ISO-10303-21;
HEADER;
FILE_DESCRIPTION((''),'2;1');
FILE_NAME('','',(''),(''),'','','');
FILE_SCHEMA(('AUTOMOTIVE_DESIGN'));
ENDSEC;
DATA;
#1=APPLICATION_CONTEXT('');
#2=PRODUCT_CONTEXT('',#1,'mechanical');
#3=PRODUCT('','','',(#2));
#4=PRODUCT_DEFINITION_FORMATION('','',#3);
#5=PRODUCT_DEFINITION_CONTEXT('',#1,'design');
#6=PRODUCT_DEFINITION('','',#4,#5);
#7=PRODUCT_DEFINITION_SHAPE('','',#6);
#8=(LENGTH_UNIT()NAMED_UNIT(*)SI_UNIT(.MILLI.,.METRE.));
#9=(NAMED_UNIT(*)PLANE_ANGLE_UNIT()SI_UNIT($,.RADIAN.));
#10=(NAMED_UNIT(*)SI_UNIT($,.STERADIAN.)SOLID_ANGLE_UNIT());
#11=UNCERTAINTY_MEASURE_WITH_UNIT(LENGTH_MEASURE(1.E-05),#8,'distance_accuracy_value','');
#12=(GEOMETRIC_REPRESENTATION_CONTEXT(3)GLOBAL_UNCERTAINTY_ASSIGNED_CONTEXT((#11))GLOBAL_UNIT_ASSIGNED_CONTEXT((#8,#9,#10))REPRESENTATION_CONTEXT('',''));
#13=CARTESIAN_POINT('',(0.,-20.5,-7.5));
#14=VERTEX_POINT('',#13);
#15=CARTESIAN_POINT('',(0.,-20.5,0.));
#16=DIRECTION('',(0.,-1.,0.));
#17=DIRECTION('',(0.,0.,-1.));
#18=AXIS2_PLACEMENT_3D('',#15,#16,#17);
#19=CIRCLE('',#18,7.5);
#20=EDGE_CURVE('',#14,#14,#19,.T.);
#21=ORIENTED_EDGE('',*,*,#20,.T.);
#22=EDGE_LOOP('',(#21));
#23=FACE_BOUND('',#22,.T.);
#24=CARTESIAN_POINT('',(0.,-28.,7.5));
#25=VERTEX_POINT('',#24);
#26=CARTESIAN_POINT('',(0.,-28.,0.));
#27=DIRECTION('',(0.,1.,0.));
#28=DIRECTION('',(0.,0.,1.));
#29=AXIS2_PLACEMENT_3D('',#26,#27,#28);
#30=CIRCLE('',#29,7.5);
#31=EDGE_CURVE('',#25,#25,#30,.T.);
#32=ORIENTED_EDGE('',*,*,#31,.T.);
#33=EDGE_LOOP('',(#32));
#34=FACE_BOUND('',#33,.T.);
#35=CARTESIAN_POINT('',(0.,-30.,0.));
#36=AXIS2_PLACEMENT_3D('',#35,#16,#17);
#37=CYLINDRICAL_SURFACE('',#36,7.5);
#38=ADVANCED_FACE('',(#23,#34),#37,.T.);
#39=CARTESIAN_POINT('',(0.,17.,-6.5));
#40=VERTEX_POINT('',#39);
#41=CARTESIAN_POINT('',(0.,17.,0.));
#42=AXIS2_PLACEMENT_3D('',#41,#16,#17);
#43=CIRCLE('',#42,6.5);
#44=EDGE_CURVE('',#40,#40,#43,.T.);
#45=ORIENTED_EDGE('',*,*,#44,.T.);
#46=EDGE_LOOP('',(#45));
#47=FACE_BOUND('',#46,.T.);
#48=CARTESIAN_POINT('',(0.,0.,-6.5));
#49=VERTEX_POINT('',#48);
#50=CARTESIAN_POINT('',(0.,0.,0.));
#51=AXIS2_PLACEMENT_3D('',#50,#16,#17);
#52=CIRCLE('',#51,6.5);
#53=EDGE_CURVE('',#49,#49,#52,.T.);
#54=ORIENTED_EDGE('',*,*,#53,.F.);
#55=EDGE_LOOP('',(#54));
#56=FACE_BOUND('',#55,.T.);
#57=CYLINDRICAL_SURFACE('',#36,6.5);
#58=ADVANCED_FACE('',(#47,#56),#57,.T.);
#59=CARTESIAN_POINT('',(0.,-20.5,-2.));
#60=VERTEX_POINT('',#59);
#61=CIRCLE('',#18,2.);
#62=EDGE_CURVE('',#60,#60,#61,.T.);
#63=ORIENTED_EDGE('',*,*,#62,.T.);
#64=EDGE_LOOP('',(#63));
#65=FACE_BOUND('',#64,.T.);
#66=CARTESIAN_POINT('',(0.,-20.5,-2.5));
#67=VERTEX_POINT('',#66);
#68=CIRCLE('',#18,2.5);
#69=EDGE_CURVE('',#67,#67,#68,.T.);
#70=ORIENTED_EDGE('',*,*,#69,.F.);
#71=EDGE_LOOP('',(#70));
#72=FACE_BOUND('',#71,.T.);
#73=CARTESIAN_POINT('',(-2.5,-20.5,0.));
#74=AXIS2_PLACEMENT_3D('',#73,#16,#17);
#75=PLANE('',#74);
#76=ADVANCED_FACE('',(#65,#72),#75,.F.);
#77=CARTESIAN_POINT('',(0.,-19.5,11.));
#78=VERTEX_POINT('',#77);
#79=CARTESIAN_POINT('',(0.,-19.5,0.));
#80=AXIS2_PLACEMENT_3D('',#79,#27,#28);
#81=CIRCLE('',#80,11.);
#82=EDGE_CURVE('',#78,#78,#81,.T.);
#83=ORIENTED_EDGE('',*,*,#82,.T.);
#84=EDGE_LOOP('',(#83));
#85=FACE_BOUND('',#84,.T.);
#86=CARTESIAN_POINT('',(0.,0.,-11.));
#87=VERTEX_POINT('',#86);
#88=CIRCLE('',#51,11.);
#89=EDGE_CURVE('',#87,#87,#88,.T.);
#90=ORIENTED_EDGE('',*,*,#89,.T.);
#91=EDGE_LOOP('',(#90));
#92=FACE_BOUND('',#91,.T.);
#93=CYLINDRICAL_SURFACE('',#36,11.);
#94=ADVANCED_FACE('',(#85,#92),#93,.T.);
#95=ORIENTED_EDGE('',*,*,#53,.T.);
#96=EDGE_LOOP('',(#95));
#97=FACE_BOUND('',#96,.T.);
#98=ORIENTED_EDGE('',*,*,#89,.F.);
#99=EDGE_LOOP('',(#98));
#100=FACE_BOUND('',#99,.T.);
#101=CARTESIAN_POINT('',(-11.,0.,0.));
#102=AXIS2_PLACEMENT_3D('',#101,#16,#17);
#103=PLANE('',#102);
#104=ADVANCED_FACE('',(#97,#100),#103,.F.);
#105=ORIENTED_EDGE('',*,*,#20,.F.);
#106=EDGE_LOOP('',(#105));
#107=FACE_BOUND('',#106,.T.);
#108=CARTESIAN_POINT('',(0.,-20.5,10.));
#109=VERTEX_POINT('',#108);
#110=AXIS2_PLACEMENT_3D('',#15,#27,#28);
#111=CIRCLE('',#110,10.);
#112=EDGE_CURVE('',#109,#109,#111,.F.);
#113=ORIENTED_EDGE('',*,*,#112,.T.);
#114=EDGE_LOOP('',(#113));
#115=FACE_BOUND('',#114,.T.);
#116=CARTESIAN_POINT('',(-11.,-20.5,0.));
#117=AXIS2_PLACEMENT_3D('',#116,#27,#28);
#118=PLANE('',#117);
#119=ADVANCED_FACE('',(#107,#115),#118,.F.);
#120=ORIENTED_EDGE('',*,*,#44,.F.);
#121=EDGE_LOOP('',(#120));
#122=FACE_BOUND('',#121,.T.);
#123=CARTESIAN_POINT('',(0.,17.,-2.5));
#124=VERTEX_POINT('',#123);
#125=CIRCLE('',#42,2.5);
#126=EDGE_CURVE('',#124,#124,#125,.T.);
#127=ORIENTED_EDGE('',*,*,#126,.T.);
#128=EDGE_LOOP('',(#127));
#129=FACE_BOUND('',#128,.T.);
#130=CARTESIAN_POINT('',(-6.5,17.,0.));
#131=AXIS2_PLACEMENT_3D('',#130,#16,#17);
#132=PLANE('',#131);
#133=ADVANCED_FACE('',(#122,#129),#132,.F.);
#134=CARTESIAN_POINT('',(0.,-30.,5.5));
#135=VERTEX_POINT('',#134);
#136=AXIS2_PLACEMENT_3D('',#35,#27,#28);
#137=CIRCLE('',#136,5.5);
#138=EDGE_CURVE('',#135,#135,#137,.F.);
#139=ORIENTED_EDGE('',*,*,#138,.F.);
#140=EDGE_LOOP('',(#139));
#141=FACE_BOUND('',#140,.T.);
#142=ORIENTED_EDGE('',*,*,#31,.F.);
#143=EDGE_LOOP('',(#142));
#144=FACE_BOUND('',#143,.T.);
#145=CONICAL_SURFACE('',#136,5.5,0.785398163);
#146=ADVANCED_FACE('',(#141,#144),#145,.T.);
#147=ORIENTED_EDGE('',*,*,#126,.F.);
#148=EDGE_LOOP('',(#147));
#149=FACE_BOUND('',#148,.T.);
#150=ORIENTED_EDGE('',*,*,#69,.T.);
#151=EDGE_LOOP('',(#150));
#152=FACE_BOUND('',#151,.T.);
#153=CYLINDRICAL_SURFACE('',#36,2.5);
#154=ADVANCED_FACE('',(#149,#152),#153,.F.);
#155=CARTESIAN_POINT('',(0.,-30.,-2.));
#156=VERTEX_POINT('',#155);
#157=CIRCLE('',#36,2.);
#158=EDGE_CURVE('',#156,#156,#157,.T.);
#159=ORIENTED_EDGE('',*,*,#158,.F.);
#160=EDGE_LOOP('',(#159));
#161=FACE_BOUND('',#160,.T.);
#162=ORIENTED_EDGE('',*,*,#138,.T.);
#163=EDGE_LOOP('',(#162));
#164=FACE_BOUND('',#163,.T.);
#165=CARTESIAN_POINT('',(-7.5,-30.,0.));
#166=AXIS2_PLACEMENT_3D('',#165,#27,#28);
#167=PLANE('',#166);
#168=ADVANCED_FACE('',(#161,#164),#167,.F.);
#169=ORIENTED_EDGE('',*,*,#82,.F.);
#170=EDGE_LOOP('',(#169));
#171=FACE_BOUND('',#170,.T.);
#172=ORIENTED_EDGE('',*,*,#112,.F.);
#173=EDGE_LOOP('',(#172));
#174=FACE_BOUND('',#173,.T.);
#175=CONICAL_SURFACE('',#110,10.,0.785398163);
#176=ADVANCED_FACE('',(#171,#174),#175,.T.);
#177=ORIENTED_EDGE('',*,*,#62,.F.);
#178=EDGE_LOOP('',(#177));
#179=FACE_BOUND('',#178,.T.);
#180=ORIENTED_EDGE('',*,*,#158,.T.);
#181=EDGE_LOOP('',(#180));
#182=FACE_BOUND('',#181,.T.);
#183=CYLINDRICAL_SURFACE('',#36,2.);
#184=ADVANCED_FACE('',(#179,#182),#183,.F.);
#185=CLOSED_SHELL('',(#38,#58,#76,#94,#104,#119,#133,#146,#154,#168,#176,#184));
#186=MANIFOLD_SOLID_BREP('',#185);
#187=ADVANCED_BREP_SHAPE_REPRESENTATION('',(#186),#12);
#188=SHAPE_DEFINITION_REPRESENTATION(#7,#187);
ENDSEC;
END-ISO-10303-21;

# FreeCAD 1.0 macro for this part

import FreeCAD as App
import Part
import Sketcher
from FreeCAD import Vector


def edges_at(feature, points):
    """Names of the edges that pass closest to the given points."""
    edges = feature.Shape.Edges
    near = lambda p: min(range(len(edges)), key=lambda i: edges[i].distToShape(Part.Vertex(*p))[0])
    return sorted({f"Edge{near(p) + 1}" for p in points})


def add_polygon(sketch, points):
    """Adds a closed chain of lines whose ends are joined by coincident constraints."""
    first, n = sketch.GeometryCount, len(points)
    for a, b in zip(points, points[1:] + points[:1]):
        sketch.addGeometry(Part.LineSegment(App.Vector(*a, 0), App.Vector(*b, 0)), False)
    for i in range(n):
        sketch.addConstraint(Sketcher.Constraint("Coincident", first + i, 2, first + (i + 1) % n, 1))

doc = App.newDocument("Part")
body = doc.addObject("PartDesign::Body", "Body")

# Sketch on XY plane
sketch1 = doc.addObject("Sketcher::SketchObject", "Sketch")
body.addObject(sketch1)
sketch1.AttachmentSupport = (doc.XY_Plane, [""])
sketch1.MapMode = "FlatFace"
add_polygon(sketch1, [(-7.5, -20.5), (-7.5, -30), (-2, -30), (-2, -20.5), (-2.5, -20.5), (-2.5, 17), (-6.5, 17), (-6.5, 0), (-11, 0), (-11, -20.5)])  # lines 0-9
sketch1.addConstraint([
    Sketcher.Constraint("Vertical", 0),
    Sketcher.Constraint("Horizontal", 1),
    Sketcher.Constraint("Vertical", 2),
    Sketcher.Constraint("Horizontal", 3),
    Sketcher.Constraint("Vertical", 4),
    Sketcher.Constraint("Horizontal", 5),
    Sketcher.Constraint("Vertical", 6),
    Sketcher.Constraint("Horizontal", 7),
    Sketcher.Constraint("Vertical", 8),
    Sketcher.Constraint("Horizontal", 9),
    Sketcher.Constraint("PointOnObject", 6, 2, -1),
    Sketcher.Constraint("Horizontal", 3, 2, 8, 2),
    Sketcher.Constraint("DistanceX", 5, 2, 5, 1, 4.0),
    Sketcher.Constraint("DistanceY", 6, 2, 6, 1, 17.0),
    Sketcher.Constraint("DistanceX", 1, 1, 1, 2, 5.5),
    Sketcher.Constraint("DistanceX", 3, 2, 3, 1, 0.5),
    Sketcher.Constraint("DistanceX", 7, 2, 7, 1, 4.5),
    Sketcher.Constraint("DistanceY", 0, 2, 0, 1, 9.5),
    Sketcher.Constraint("DistanceY", 4, 1, 4, 2, 37.5),
    Sketcher.Constraint("DistanceX", 1, 2, -1, 1, 2.0),
])
revolution = doc.addObject("PartDesign::Revolution", "Revolution")
body.addObject(revolution)
revolution.Profile = sketch1
revolution.ReferenceAxis = (sketch1, ["V_Axis"])
revolution.Angle = 360
doc.recompute()

chamfer = doc.addObject("PartDesign::Chamfer", "Chamfer")
body.addObject(chamfer)
chamfer.Base = (revolution, edges_at(revolution, [(7.5, -30, 0)]))
chamfer.Size = 2
doc.recompute()

chamfer2 = doc.addObject("PartDesign::Chamfer", "Chamfer001")
body.addObject(chamfer2)
chamfer2.Base = (chamfer, edges_at(chamfer, [(11, -20.5, 0)]))
chamfer2.Size = 1

doc.recompute()
